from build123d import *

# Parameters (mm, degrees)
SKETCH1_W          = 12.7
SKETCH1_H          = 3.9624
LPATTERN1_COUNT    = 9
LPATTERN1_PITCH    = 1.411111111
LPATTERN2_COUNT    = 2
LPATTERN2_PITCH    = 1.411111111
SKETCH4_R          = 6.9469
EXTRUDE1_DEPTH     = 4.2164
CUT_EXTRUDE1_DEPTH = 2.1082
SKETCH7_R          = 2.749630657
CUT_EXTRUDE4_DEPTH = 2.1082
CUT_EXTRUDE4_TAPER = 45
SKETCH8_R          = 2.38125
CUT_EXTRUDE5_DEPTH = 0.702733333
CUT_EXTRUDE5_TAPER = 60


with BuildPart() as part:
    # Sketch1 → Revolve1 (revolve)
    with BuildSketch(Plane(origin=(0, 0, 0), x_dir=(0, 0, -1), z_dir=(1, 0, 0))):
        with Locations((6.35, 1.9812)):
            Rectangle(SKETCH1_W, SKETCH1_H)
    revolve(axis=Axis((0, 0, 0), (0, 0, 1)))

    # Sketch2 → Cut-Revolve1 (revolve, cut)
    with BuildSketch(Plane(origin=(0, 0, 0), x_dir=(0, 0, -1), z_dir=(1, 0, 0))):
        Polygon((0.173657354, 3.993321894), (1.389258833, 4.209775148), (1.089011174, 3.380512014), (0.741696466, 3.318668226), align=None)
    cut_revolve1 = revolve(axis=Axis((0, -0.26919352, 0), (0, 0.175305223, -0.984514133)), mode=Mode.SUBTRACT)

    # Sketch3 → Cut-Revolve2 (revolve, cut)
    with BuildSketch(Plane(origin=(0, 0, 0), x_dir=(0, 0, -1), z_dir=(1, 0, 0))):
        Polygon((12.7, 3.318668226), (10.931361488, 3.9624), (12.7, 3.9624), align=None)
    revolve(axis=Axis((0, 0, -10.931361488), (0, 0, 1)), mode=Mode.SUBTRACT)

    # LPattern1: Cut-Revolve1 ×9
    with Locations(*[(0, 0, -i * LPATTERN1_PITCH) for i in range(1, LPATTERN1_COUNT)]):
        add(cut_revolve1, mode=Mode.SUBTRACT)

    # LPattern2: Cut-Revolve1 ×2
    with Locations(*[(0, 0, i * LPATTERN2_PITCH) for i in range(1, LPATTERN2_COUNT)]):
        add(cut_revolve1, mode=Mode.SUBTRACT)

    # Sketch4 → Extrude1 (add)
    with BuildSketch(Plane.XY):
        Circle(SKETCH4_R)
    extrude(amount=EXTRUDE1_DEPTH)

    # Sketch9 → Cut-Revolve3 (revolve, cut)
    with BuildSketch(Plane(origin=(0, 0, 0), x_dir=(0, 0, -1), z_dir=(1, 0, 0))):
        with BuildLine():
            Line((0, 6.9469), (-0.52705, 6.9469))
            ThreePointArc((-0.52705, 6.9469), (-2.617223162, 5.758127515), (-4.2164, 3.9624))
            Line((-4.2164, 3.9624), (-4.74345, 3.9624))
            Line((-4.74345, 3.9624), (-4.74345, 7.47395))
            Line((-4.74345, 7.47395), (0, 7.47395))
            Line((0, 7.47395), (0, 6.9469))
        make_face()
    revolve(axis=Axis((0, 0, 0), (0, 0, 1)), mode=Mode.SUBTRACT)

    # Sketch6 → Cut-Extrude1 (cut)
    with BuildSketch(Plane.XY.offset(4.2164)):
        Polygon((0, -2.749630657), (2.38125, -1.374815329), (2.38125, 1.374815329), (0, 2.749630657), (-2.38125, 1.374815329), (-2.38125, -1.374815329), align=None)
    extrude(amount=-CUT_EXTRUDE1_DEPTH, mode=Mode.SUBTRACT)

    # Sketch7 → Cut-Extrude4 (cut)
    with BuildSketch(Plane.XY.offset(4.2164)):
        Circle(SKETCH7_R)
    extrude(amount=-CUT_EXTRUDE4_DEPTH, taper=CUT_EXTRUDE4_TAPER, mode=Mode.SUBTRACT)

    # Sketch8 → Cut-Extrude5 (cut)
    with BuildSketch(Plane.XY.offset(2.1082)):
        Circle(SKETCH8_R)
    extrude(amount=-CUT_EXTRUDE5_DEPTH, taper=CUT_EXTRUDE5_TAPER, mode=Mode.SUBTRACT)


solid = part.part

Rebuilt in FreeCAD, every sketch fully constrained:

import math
import FreeCAD as App
import Part
import Sketcher
from FreeCAD import Vector
Q = App.Units.Quantity


def add_polygon(sketch, points):
    """Adds a closed chain of lines whose ends are joined by coincident constraints."""
    first, n = sketch.GeometryCount, len(points)
    for a, b in zip(points, points[1:] + points[:1]):
        sketch.addGeometry(Part.LineSegment(App.Vector(*a, 0), App.Vector(*b, 0)), False)
    for i in range(n):
        sketch.addConstraint(Sketcher.Constraint("Coincident", first + i, 2, first + (i + 1) % n, 1))

doc = App.newDocument("Part")
body = doc.addObject("PartDesign::Body", "Body")

# Sketch on YZ plane
sketch1 = doc.addObject("Sketcher::SketchObject", "Sketch")
body.addObject(sketch1)
sketch1.AttachmentSupport = (doc.YZ_Plane, [""])
sketch1.MapMode = "FlatFace"
add_polygon(sketch1, [(4, 0), (0, 0), (0, -12.7), (4, -12.7)])  # lines 0-3
sketch1.addConstraint([
    Sketcher.Constraint("Horizontal", 0),
    Sketcher.Constraint("Vertical", 1),
    Sketcher.Constraint("Horizontal", 2),
    Sketcher.Constraint("Vertical", 3),
    Sketcher.Constraint("Coincident", 0, 2, -1, 1),
    Sketcher.Constraint("DistanceY", 1, 2, 1, 1, Q("0.5 in")),
    Sketcher.Constraint("DistanceX", 0, 2, 0, 1, Q("0.156 in")),
])
revolution = doc.addObject("PartDesign::Revolution", "Revolution")
body.addObject(revolution)
revolution.Profile = sketch1
revolution.ReferenceAxis = (sketch1, ["V_Axis"])
revolution.Angle = 360

# Sketch on YZ plane
sketch2 = doc.addObject("Sketcher::SketchObject", "Sketch001")
body.addObject(sketch2)
sketch2.AttachmentSupport = (doc.YZ_Plane, [""])
sketch2.MapMode = "FlatFace"
add_polygon(sketch2, [(4.21, -1.39), (3.99, -0.17), (3.32, -0.74), (3.38, -1.09)])  # lines 0-3
sketch2.addGeometry(Part.LineSegment(Vector(-0.11, -0.9, 0), Vector(0.11, -2.12, 0)), True)  # axis
sketch2.addConstraint([
    Sketcher.Constraint("Parallel", 0, 2),
    Sketcher.Constraint("Parallel", 2, 4),
    Sketcher.Constraint("Equal", 1, 3),
    Sketcher.Constraint("Equal", 0, 4),
    Sketcher.Constraint("DistanceX", 4, 1, 3, 2, Q("0.1700001 in")),
    Sketcher.Constraint("DistanceY", 3, 2, 0, 2, 1.215601),
    Sketcher.Constraint("DistanceX", -1, 1, 0, 2, 3.993322),
    Sketcher.Constraint("DistanceX", -1, 1, 1, 2, 3.318668),
    Sketcher.Constraint("DistanceY", 2, 2, -1, 1, 1.089011),
    Sketcher.Constraint("DistanceY", 3, 2, -1, 1, 1.389259),
    Sketcher.Constraint("DistanceY", 4, 1, -1, 1, 0.90399),
    Sketcher.Constraint("DistanceY", 1, 2, 0, 2, 0.568039),
])
groove = doc.addObject("PartDesign::Groove", "Groove")
body.addObject(groove)
groove.Profile = sketch2
groove.ReferenceAxis = (sketch2, ["Axis0"])
groove.Angle = 360

# Sketch on YZ plane
sketch3 = doc.addObject("Sketcher::SketchObject", "Sketch002")
body.addObject(sketch3)
sketch3.AttachmentSupport = (doc.YZ_Plane, [""])
sketch3.MapMode = "FlatFace"
add_polygon(sketch3, [(4, -10.9), (3.3, -12.7), (4, -12.7)])  # lines 0-2
sketch3.addConstraint([
    Sketcher.Constraint("Horizontal", 1),
    Sketcher.Constraint("Vertical", 2),
    Sketcher.Constraint("Angle", 0, Q("-110 deg")),
    Sketcher.Constraint("DistanceY", 0, 2, -1, 1, Q("0.5 in")),
    Sketcher.Constraint("DistanceX", -1, 1, 1, 2, Q("0.156 in")),
    Sketcher.Constraint("DistanceX", 1, 1, 1, 2, 0.643732),
])
groove2 = doc.addObject("PartDesign::Groove", "Groove001")
body.addObject(groove2)
groove2.Profile = sketch3
groove2.ReferenceAxis = (sketch3, ["V_Axis"])
groove2.Angle = 360
doc.recompute()

linearpattern = doc.addObject("PartDesign::LinearPattern", "LinearPattern")
body.addObject(linearpattern)
linearpattern.Originals = [groove]
linearpattern.Direction = (doc.Z_Axis, [""])
linearpattern.Mode = "offset"
linearpattern.Offset = 1.411111
linearpattern.Occurrences = 9
linearpattern.Reversed = True
body.Tip = linearpattern
doc.recompute()

linearpattern2 = doc.addObject("PartDesign::LinearPattern", "LinearPattern001")
body.addObject(linearpattern2)
linearpattern2.Originals = [groove]
linearpattern2.Direction = (doc.Z_Axis, [""])
linearpattern2.Mode = "offset"
linearpattern2.Offset = 1.411111
linearpattern2.Occurrences = 2
body.Tip = linearpattern2

# Sketch on XY plane
sketch4 = doc.addObject("Sketcher::SketchObject", "Sketch003")
body.addObject(sketch4)
sketch4.AttachmentSupport = (doc.XY_Plane, [""])
sketch4.MapMode = "FlatFace"
sketch4.addGeometry(Part.Circle(Vector(0, 0, 0), Vector(0, 0, 1), 7), False)
sketch4.addConstraint([
    Sketcher.Constraint("Coincident", 0, 3, -1, 1),
    Sketcher.Constraint("Diameter", 0, Q("0.547 in")),
])
pad1 = doc.addObject("PartDesign::Pad", "Pad")
body.addObject(pad1)
pad1.Profile = sketch4
pad1.Length = Q("0.166 in")

# Sketch on YZ plane
sketch5 = doc.addObject("Sketcher::SketchObject", "Sketch004")
body.addObject(sketch5)
sketch5.AttachmentSupport = (doc.YZ_Plane, [""])
sketch5.MapMode = "FlatFace"
sketch5.addGeometry([
    Part.LineSegment(Vector(6.9, 0.5, 0), Vector(6.9, 0, 0)),  # 0
    Part.LineSegment(Vector(6.9, 0, 0), Vector(7.5, 0, 0)),  # 1
    Part.LineSegment(Vector(7.5, 0, 0), Vector(7.5, 4.7, 0)),  # 2
    Part.LineSegment(Vector(7.5, 4.7, 0), Vector(4, 4.7, 0)),  # 3
    Part.LineSegment(Vector(4, 4.7, 0), Vector(4, 4.2, 0)),  # 4
    Part.ArcOfCircle(Part.Circle(Vector(0, -2, 0), Vector(0, 0, 1), 7.4), math.radians(20), math.radians(58)),  # 5
], False)
sketch5.addConstraint([
    Sketcher.Constraint("Coincident", 0, 2, 1, 1),
    Sketcher.Constraint("Coincident", 1, 2, 2, 1),
    Sketcher.Constraint("Coincident", 2, 2, 3, 1),
    Sketcher.Constraint("Coincident", 3, 2, 4, 1),
    Sketcher.Constraint("Coincident", 4, 2, 5, 2),
    Sketcher.Constraint("Coincident", 5, 1, 0, 1),
    Sketcher.Constraint("Vertical", 0),
    Sketcher.Constraint("Horizontal", 1),
    Sketcher.Constraint("Vertical", 2),
    Sketcher.Constraint("Horizontal", 3),
    Sketcher.Constraint("Vertical", 4),
    Sketcher.Constraint("PointOnObject", 5, 3, -2),
    Sketcher.Constraint("PointOnObject", 0, 2, -1),
    Sketcher.Constraint("Equal", 1, 0),
    Sketcher.Constraint("Equal", 0, 4),
    Sketcher.Constraint("DistanceX", -1, 1, 3, 2, Q("0.156 in")),
    Sketcher.Constraint("DistanceY", -1, 1, 4, 2, Q("0.166 in")),
    Sketcher.Constraint("DistanceX", -1, 1, 0, 2, Q("0.2735 in")),
    Sketcher.Constraint("Radius", 5, 7.406305),
])
groove3 = doc.addObject("PartDesign::Groove", "Groove002")
body.addObject(groove3)
groove3.Profile = sketch5
groove3.ReferenceAxis = (sketch5, ["V_Axis"])
groove3.Angle = 360

# Sketch on XY plane
sketch6 = doc.addObject("Sketcher::SketchObject", "Sketch005")
body.addObject(sketch6)
sketch6.AttachmentSupport = (doc.XY_Plane, [""])
sketch6.MapMode = "FlatFace"
sketch6.AttachmentOffset = App.Placement(Vector(0, 0, 0.166 * 25.4), App.Rotation())
add_polygon(sketch6, [(0, -2.7), (2.4, -1.4), (2.4, 1.4), (0, 2.7), (-2.4, 1.4), (-2.4, -1.4)])  # lines 0-5
sketch6.addConstraint([
    Sketcher.Constraint("Vertical", 1),
    Sketcher.Constraint("Vertical", 4),
    Sketcher.Constraint("Symmetric", 0, 2, 3, 2, -1, 1),
    Sketcher.Constraint("Symmetric", 2, 2, 5, 2, -1, 1),
    Sketcher.Constraint("PointOnObject", 2, 2, -2),
    Sketcher.Constraint("Parallel", 2, 5),
    Sketcher.Constraint("Horizontal", 1, 2, 3, 2),
    Sketcher.Constraint("Angle", 0, Q("30 deg")),
    Sketcher.Constraint("DistanceX", -1, 1, 0, 2, Q("0.09375 in")),
    Sketcher.Constraint("DistanceY", 1, 1, 1, 2, 2.749631),
])
pocket1 = doc.addObject("PartDesign::Pocket", "Pocket")
body.addObject(pocket1)
pocket1.Profile = sketch6
pocket1.Length = Q("0.083 in")

# Sketch on XY plane
sketch7 = doc.addObject("Sketcher::SketchObject", "Sketch006")
body.addObject(sketch7)
sketch7.AttachmentSupport = (doc.XY_Plane, [""])
sketch7.MapMode = "FlatFace"
sketch7.AttachmentOffset = App.Placement(Vector(0, 0, 0.166 * 25.4), App.Rotation())
sketch7.addGeometry(Part.Circle(Vector(0, 0, 0), Vector(0, 0, 1), 2.7), False)
sketch7.addConstraint([
    Sketcher.Constraint("Coincident", 0, 3, -1, 1),
    Sketcher.Constraint("Diameter", 0, 5.499261),
])
pocket2 = doc.addObject("PartDesign::Pocket", "Pocket001")
body.addObject(pocket2)
pocket2.Profile = sketch7
pocket2.Length = Q("0.083 in")
pocket2.TaperAngle = -45

# Sketch on XY plane
sketch8 = doc.addObject("Sketcher::SketchObject", "Sketch007")
body.addObject(sketch8)
sketch8.AttachmentSupport = (doc.XY_Plane, [""])
sketch8.MapMode = "FlatFace"
sketch8.AttachmentOffset = App.Placement(Vector(0, 0, 0.083 * 25.4), App.Rotation())
sketch8.addGeometry(Part.Circle(Vector(0, 0, 0), Vector(0, 0, 1), 2.4), False)
sketch8.addConstraint([
    Sketcher.Constraint("Coincident", 0, 3, -1, 1),
    Sketcher.Constraint("Diameter", 0, Q("0.1875 in")),
])
pocket3 = doc.addObject("PartDesign::Pocket", "Pocket002")
body.addObject(pocket3)
pocket3.Profile = sketch8
pocket3.Length = 0.702733
pocket3.TaperAngle = -60

doc.recompute()
